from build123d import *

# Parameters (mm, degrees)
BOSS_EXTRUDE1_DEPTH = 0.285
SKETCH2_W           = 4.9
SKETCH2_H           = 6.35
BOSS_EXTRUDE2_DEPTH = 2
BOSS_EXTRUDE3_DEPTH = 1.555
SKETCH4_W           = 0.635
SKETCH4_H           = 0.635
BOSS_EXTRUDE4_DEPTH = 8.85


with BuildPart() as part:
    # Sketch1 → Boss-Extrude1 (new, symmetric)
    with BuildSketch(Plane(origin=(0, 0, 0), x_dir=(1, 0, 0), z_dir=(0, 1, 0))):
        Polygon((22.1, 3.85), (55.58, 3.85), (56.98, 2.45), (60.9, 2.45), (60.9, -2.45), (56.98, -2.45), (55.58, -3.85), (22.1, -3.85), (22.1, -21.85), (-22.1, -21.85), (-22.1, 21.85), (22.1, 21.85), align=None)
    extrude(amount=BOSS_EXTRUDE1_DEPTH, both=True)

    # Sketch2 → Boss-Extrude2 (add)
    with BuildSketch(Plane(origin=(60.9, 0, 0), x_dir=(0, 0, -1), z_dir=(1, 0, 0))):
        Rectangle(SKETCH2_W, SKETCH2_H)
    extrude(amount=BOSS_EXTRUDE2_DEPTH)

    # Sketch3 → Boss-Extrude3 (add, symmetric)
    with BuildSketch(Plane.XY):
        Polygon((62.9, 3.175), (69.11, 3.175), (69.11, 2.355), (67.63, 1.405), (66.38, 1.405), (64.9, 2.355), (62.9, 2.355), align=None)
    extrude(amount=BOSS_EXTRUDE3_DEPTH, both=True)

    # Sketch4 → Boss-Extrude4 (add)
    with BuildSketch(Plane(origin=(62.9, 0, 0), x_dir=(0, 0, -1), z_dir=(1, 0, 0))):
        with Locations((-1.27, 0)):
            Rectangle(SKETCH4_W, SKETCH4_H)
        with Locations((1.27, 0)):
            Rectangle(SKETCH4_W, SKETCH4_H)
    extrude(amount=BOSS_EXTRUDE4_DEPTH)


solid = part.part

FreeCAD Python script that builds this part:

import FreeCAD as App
import Part
import Sketcher

V = App.Vector
Q = App.Units.Quantity


def add_polygon(sketch, points):
    """Adds a closed chain of lines whose ends are joined by coincident constraints."""
    first, n = sketch.GeometryCount, len(points)
    for a, b in zip(points, points[1:] + points[:1]):
        sketch.addGeometry(Part.LineSegment(App.Vector(*a, 0), App.Vector(*b, 0)), False)
    for i in range(n):
        sketch.addConstraint(Sketcher.Constraint("Coincident", first + i, 2, first + (i + 1) % n, 1))

doc = App.newDocument("Part")
params = doc.addObject("Spreadsheet::Sheet", "Params")
for row, (alias, value) in enumerate([
    ("sketch1_height", "18 mm"),
    ("sketch1_width", "44.2 mm"),
    ("sketch1_height2", "43.7 mm"),
    ("sketch1_height3", "4.9 mm"),
    ("sketch1_width2", "33.48 mm"),
    ("pad1_length", "0.57 mm"),
    ("sketch2_height", "4.9 mm"),
    ("sketch2_width", "6.35 mm"),
    ("pad2_length", "2 mm"),
    ("sketch3_width", "2 mm"),
    ("sketch3_width2", "6.21 mm"),
    ("sketch3_width3", "1.25 mm"),
    ("sketch3_height", "0.82 mm"),
    ("pad3_length", "3.11 mm"),
    ("pad4_length", "8.85 mm"),
], start=1):
    params.set(f"A{row}", alias)
    params.set(f"B{row}", "=" + value)
    params.setAlias(f"B{row}", alias)

body = doc.addObject("PartDesign::Body", "Body")

# Sketch on XZ plane
sketch1 = body.newObject("Sketcher::SketchObject", "Sketch")
sketch1.AttachmentSupport = (doc.getObject("XZ_Plane"), [""])
sketch1.MapMode = "FlatFace"
add_polygon(sketch1, [(55.6, -3.9), (22.1, -3.9), (22.1, -21.9), (-22.1, -21.9), (-22.1, 21.9), (22.1, 21.9), (22.1, 3.9), (55.6, 3.9), (57, 2.5), (60.9, 2.5), (60.9, -2.5), (57, -2.5)])  # lines 0-11
sketch1.addConstraint(Sketcher.Constraint("Horizontal", 0))
sketch1.addConstraint(Sketcher.Constraint("Vertical", 1))
sketch1.addConstraint(Sketcher.Constraint("Horizontal", 2))
sketch1.addConstraint(Sketcher.Constraint("Vertical", 3))
sketch1.addConstraint(Sketcher.Constraint("Horizontal", 4))
sketch1.addConstraint(Sketcher.Constraint("Vertical", 5))
sketch1.addConstraint(Sketcher.Constraint("Horizontal", 6))
sketch1.addConstraint(Sketcher.Constraint("Horizontal", 8))
sketch1.addConstraint(Sketcher.Constraint("Vertical", 9))
sketch1.addConstraint(Sketcher.Constraint("Horizontal", 10))
sketch1.addConstraint(Sketcher.Constraint("Symmetric", 1, 2, 3, 2, -1, 1))
sketch1.addConstraint(Sketcher.Constraint("Symmetric", 0, 2, 5, 2, -1))
sketch1.addConstraint(Sketcher.Constraint("Symmetric", 7, 2, 10, 2, -1))
sketch1.addConstraint(Sketcher.Constraint("Perpendicular", 7, 11))
sketch1.addConstraint(Sketcher.Constraint("Vertical", 6, 2, 11, 2))
sketch1.addConstraint(Sketcher.Constraint("DistanceY", 1, 2, 1, 1, Q("18 mm")))
sketch1.addConstraint(Sketcher.Constraint("DistanceX", 2, 2, 2, 1, Q("44.2 mm")))
sketch1.addConstraint(Sketcher.Constraint("DistanceY", 3, 1, 3, 2, Q("43.7 mm")))
sketch1.addConstraint(Sketcher.Constraint("DistanceY", 9, 2, 9, 1, Q("4.9 mm")))
sketch1.addConstraint(Sketcher.Constraint("DistanceX", 0, 2, 0, 1, Q("33.48 mm")))
sketch1.addConstraint(Sketcher.Constraint("DistanceX", 8, 1, 8, 2, Q("3.92 mm")))
sketch1.setExpression("Constraints[27]", "Params.sketch1_height")
sketch1.setExpression("Constraints[28]", "Params.sketch1_width")
sketch1.setExpression("Constraints[29]", "Params.sketch1_height2")
sketch1.setExpression("Constraints[30]", "Params.sketch1_height3")
sketch1.setExpression("Constraints[31]", "Params.sketch1_width2")
pad1 = body.newObject("PartDesign::Pad", "Pad")
pad1.Profile = sketch1
pad1.setExpression("Length", "Params.pad1_length")
pad1.Midplane = True

# Sketch on YZ plane
sketch2 = body.newObject("Sketcher::SketchObject", "Sketch001")
sketch2.AttachmentSupport = (doc.getObject("YZ_Plane"), [""])
sketch2.MapMode = "FlatFace"
sketch2.AttachmentOffset = App.Placement(V(0, 0, 60.9), App.Rotation())
add_polygon(sketch2, [(3.2, 2.5), (-3.2, 2.5), (-3.2, -2.5), (3.2, -2.5)])  # lines 0-3
sketch2.addConstraint(Sketcher.Constraint("Horizontal", 0))
sketch2.addConstraint(Sketcher.Constraint("Vertical", 1))
sketch2.addConstraint(Sketcher.Constraint("Horizontal", 2))
sketch2.addConstraint(Sketcher.Constraint("Vertical", 3))
sketch2.addConstraint(Sketcher.Constraint("Symmetric", 0, 2, 2, 2, -1, 1))
sketch2.addConstraint(Sketcher.Constraint("DistanceY", 1, 2, 1, 1, Q("4.9 mm")))
sketch2.addConstraint(Sketcher.Constraint("DistanceX", 0, 2, 0, 1, Q("6.35 mm")))
sketch2.setExpression("Constraints[9]", "Params.sketch2_height")
sketch2.setExpression("Constraints[10]", "Params.sketch2_width")
pad2 = body.newObject("PartDesign::Pad", "Pad001")
pad2.Profile = sketch2
pad2.setExpression("Length", "Params.pad2_length")

# Sketch on XY plane
sketch3 = body.newObject("Sketcher::SketchObject", "Sketch002")
sketch3.AttachmentSupport = (doc.getObject("XY_Plane"), [""])
sketch3.MapMode = "FlatFace"
add_polygon(sketch3, [(69.1, 3.2), (62.9, 3.2), (62.9, 2.4), (64.9, 2.4), (66.4, 1.4), (67.6, 1.4), (69.1, 2.4)])  # lines 0-6
sketch3.addConstraint(Sketcher.Constraint("Horizontal", 0))
sketch3.addConstraint(Sketcher.Constraint("Vertical", 1))
sketch3.addConstraint(Sketcher.Constraint("Horizontal", 2))
sketch3.addConstraint(Sketcher.Constraint("Horizontal", 4))
sketch3.addConstraint(Sketcher.Constraint("Vertical", 6))
sketch3.addConstraint(Sketcher.Constraint("Horizontal", 2, 2, 5, 2))
sketch3.addConstraint(Sketcher.Constraint("Equal", 3, 5))
sketch3.addConstraint(Sketcher.Constraint("DistanceX", 2, 1, 2, 2, Q("2 mm")))
sketch3.addConstraint(Sketcher.Constraint("DistanceX", 0, 2, 0, 1, Q("6.21 mm")))
sketch3.addConstraint(Sketcher.Constraint("DistanceX", 4, 1, 4, 2, Q("1.25 mm")))
sketch3.addConstraint(Sketcher.Constraint("DistanceY", 1, 2, 1, 1, Q("0.82 mm")))
sketch3.addConstraint(Sketcher.Constraint("DistanceX", -1, 1, 0, 2, Q("62.9 mm")))
sketch3.addConstraint(Sketcher.Constraint("DistanceY", 3, 2, 2, 2, Q("0.95 mm")))
sketch3.addConstraint(Sketcher.Constraint("DistanceY", -1, 1, 0, 2, Q("3.175 mm")))
sketch3.setExpression("Constraints[14]", "Params.sketch3_width")
sketch3.setExpression("Constraints[15]", "Params.sketch3_width2")
sketch3.setExpression("Constraints[16]", "Params.sketch3_width3")
sketch3.setExpression("Constraints[17]", "Params.sketch3_height")
pad3 = body.newObject("PartDesign::Pad", "Pad002")
pad3.Profile = sketch3
pad3.setExpression("Length", "Params.pad3_length")
pad3.Midplane = True

# Sketch on YZ plane
sketch4 = body.newObject("Sketcher::SketchObject", "Sketch003")
sketch4.AttachmentSupport = (doc.getObject("YZ_Plane"), [""])
sketch4.MapMode = "FlatFace"
sketch4.AttachmentOffset = App.Placement(V(0, 0, 62.9), App.Rotation())
add_polygon(sketch4, [(0.3, 1.6), (-0.3, 1.6), (-0.3, 1), (0.3, 1)])  # lines 0-3
add_polygon(sketch4, [(0.3, -1), (-0.3, -1), (-0.3, -1.6), (0.3, -1.6)])  # lines 4-7
sketch4.addConstraint(Sketcher.Constraint("Horizontal", 0))
sketch4.addConstraint(Sketcher.Constraint("Vertical", 1))
sketch4.addConstraint(Sketcher.Constraint("Horizontal", 2))
sketch4.addConstraint(Sketcher.Constraint("Vertical", 3))
sketch4.addConstraint(Sketcher.Constraint("Horizontal", 4))
sketch4.addConstraint(Sketcher.Constraint("Vertical", 5))
sketch4.addConstraint(Sketcher.Constraint("Horizontal", 6))
sketch4.addConstraint(Sketcher.Constraint("Vertical", 7))
sketch4.addConstraint(Sketcher.Constraint("Symmetric", 2, 2, 4, 2, -1, 1))
sketch4.addConstraint(Sketcher.Constraint("Symmetric", 0, 2, 6, 2, -1, 1))
sketch4.addConstraint(Sketcher.Constraint("Vertical", 1, 2, 4, 2))
sketch4.addConstraint(Sketcher.Constraint("Equal", 6, 1))
sketch4.addConstraint(Sketcher.Constraint("DistanceX", 0, 2, 0, 1, Q("0.635 mm")))
sketch4.addConstraint(Sketcher.Constraint("DistanceY", 4, 2, 0, 2, Q("2.54 mm")))
pad4 = body.newObject("PartDesign::Pad", "Pad003")
pad4.Profile = sketch4
pad4.setExpression("Length", "Params.pad4_length")

doc.recompute()
